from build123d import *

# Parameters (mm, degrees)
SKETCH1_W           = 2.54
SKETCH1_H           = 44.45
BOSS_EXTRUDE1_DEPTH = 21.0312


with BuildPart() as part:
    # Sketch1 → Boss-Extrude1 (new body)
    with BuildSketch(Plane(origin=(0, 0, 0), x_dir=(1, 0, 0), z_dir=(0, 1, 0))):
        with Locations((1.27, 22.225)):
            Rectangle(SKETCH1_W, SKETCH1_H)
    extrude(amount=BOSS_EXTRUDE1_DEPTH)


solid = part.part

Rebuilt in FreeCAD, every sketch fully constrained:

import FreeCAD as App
import Part
import Sketcher
Q = App.Units.Quantity

doc = App.newDocument("Part")
body = doc.addObject("PartDesign::Body", "Body")

sketch1 = body.newObject("Sketcher::SketchObject", "Sketch")
sketch1.AttachmentSupport = (doc.getObject("XZ_Plane"), [""])
sketch1.MapMode = "FlatFace"
sketch1.addGeometry(Part.LineSegment(App.Vector(0, -44.5, 0), App.Vector(0, 0, 0)), False)
sketch1.addGeometry(Part.LineSegment(App.Vector(0, 0, 0), App.Vector(2.5, 0, 0)), False)
sketch1.addGeometry(Part.LineSegment(App.Vector(2.5, 0, 0), App.Vector(2.5, -44.5, 0)), False)
sketch1.addGeometry(Part.LineSegment(App.Vector(2.5, -44.5, 0), App.Vector(0, -44.5, 0)), False)
sketch1.addConstraint(Sketcher.Constraint("Coincident", 0, 2, 1, 1))
sketch1.addConstraint(Sketcher.Constraint("Coincident", 1, 2, 2, 1))
sketch1.addConstraint(Sketcher.Constraint("Coincident", 2, 2, 3, 1))
sketch1.addConstraint(Sketcher.Constraint("Coincident", 3, 2, 0, 1))
sketch1.addConstraint(Sketcher.Constraint("Vertical", 0))
sketch1.addConstraint(Sketcher.Constraint("Horizontal", 1))
sketch1.addConstraint(Sketcher.Constraint("Vertical", 2))
sketch1.addConstraint(Sketcher.Constraint("Horizontal", 3))
sketch1.addConstraint(Sketcher.Constraint("Coincident", 0, 2, -1, 1))
sketch1.addConstraint(Sketcher.Constraint("DistanceX", 1, 1, 1, 2, Q("0.1 in")))
sketch1.addConstraint(Sketcher.Constraint("DistanceY", 0, 1, 0, 2, Q("1.75 in")))
pad1 = body.newObject("PartDesign::Pad", "Pad")
pad1.Profile = sketch1
pad1.Length = Q("0.828 in")
pad1.Reversed = True

doc.recompute()
